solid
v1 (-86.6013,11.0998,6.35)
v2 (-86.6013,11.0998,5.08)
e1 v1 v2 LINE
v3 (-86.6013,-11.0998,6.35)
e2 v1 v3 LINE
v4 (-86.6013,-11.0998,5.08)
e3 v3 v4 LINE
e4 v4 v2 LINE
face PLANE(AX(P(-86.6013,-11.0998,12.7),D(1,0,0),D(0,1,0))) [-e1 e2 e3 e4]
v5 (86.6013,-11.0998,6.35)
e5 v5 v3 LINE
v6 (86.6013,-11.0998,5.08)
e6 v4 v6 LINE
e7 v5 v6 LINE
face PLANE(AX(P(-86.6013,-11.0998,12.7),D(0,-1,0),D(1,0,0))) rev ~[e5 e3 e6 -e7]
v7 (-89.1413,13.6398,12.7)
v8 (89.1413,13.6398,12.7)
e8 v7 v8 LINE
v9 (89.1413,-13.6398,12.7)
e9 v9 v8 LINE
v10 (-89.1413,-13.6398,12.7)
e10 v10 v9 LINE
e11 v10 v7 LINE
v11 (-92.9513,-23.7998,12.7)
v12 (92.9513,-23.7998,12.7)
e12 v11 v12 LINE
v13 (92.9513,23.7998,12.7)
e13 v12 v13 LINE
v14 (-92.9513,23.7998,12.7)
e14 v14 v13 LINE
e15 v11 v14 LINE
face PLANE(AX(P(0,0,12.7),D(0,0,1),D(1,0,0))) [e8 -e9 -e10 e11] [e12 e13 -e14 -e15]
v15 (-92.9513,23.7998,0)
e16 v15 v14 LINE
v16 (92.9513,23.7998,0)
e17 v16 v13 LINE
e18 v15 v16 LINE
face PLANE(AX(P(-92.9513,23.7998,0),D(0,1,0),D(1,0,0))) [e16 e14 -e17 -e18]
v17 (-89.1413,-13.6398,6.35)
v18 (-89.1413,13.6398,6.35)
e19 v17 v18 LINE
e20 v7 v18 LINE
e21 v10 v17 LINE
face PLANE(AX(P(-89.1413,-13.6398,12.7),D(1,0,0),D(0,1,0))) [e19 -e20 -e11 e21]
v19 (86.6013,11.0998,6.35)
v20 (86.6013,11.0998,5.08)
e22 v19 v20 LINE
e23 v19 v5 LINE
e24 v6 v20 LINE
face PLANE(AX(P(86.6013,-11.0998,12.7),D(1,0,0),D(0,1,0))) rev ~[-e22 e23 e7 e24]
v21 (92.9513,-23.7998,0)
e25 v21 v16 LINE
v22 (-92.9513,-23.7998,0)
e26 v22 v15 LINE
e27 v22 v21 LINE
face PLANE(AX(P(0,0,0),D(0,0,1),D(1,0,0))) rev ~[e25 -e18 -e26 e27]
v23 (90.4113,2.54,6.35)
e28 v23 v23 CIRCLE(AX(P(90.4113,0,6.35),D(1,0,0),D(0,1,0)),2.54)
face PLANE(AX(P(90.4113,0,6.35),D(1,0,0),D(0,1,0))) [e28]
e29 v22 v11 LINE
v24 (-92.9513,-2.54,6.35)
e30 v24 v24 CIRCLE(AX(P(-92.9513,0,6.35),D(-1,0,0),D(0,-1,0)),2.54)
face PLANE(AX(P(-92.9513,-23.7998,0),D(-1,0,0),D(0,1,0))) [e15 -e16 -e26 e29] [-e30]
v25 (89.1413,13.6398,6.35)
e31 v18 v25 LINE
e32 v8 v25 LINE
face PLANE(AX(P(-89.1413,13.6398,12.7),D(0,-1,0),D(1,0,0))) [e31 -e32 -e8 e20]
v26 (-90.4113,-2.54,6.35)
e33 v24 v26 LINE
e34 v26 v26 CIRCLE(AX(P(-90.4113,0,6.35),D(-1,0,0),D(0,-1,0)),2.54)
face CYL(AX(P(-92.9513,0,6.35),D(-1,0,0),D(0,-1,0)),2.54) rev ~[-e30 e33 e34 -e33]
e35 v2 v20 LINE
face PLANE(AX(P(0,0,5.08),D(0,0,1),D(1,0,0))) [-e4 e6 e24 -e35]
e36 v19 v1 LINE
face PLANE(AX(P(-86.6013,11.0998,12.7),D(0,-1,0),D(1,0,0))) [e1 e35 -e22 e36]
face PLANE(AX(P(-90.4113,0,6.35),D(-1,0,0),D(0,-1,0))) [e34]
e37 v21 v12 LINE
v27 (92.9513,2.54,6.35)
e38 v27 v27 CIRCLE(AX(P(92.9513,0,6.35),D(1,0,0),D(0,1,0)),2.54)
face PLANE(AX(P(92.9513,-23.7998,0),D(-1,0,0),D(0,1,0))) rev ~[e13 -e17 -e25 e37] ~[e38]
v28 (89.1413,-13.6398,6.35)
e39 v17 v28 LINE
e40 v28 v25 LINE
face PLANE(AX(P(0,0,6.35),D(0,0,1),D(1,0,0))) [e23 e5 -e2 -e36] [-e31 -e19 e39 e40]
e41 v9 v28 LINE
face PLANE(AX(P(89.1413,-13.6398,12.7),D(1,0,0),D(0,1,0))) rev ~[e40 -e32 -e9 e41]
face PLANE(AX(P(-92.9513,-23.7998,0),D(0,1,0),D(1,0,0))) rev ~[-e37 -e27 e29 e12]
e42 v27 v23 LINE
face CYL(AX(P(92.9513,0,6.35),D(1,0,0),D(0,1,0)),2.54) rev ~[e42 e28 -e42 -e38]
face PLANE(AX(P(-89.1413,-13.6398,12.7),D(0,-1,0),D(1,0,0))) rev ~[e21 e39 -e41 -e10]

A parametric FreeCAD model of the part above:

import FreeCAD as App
import Part
import Sketcher
Q = App.Units.Quantity


def add_polygon(sketch, points):
    """Adds a closed chain of lines whose ends are joined by coincident constraints."""
    first, n = sketch.GeometryCount, len(points)
    for a, b in zip(points, points[1:] + points[:1]):
        sketch.addGeometry(Part.LineSegment(App.Vector(*a, 0), App.Vector(*b, 0)), False)
    for i in range(n):
        sketch.addConstraint(Sketcher.Constraint("Coincident", first + i, 2, first + (i + 1) % n, 1))

doc = App.newDocument("Part")
body = doc.addObject("PartDesign::Body", "Body")

# Sketch on XY plane
sketch1 = doc.addObject("Sketcher::SketchObject", "Sketch")
body.addObject(sketch1)
sketch1.AttachmentSupport = (doc.XY_Plane, [""])
sketch1.MapMode = "FlatFace"
add_polygon(sketch1, [(-93, 24), (-93, -24), (93, -24), (93, 24)])  # lines 0-3
sketch1.addConstraint(Sketcher.Constraint("Vertical", 0))
sketch1.addConstraint(Sketcher.Constraint("Horizontal", 1))
sketch1.addConstraint(Sketcher.Constraint("Vertical", 2))
sketch1.addConstraint(Sketcher.Constraint("Horizontal", 3))
sketch1.addConstraint(Sketcher.Constraint("Symmetric", 0, 2, 2, 2, -1, 1))
sketch1.addConstraint(Sketcher.Constraint("DistanceX", 1, 1, 1, 2, Q("7.319 in")))
sketch1.addConstraint(Sketcher.Constraint("DistanceY", 0, 2, 0, 1, Q("1.874 in")))
pad1 = doc.addObject("PartDesign::Pad", "Pad")
body.addObject(pad1)
pad1.Profile = sketch1
pad1.Length = Q("0.5 in")

# Sketch on YZ plane
sketch2 = doc.addObject("Sketcher::SketchObject", "Sketch001")
body.addObject(sketch2)
sketch2.AttachmentSupport = (doc.YZ_Plane, [""])
sketch2.MapMode = "FlatFace"
sketch2.AttachmentOffset = App.Placement(App.Vector(0, 0, 3.6595 * 25.4), App.Rotation())
sketch2.addGeometry(Part.Circle(App.Vector(0, 6.3, 0), App.Vector(0, 0, 1), 2.5), False)
sketch2.addConstraint(Sketcher.Constraint("PointOnObject", 0, 3, -2))
sketch2.addConstraint(Sketcher.Constraint("Diameter", 0, Q("0.2 in")))
sketch2.addConstraint(Sketcher.Constraint("DistanceY", -1, 1, 0, 3, Q("0.25 in")))
pocket1 = doc.addObject("PartDesign::Pocket", "Pocket")
body.addObject(pocket1)
pocket1.Profile = sketch2
pocket1.Length = Q("0.1 in")

# Sketch on YZ plane
sketch3 = doc.addObject("Sketcher::SketchObject", "Sketch002")
body.addObject(sketch3)
sketch3.AttachmentSupport = (doc.YZ_Plane, [""])
sketch3.MapMode = "FlatFace"
sketch3.AttachmentOffset = App.Placement(App.Vector(0, 0, -3.6595 * 25.4), App.Rotation())
sketch3.addGeometry(Part.Circle(App.Vector(0, 6.3, 0), App.Vector(0, 0, 1), 2.5), False)
sketch3.addConstraint(Sketcher.Constraint("PointOnObject", 0, 3, -2))
sketch3.addConstraint(Sketcher.Constraint("Diameter", 0, Q("0.2 in")))
sketch3.addConstraint(Sketcher.Constraint("DistanceY", -1, 1, 0, 3, Q("0.25 in")))
pocket2 = doc.addObject("PartDesign::Pocket", "Pocket001")
body.addObject(pocket2)
pocket2.Profile = sketch3
pocket2.Length = Q("0.1 in")
pocket2.Reversed = True

# Sketch on XY plane
sketch4 = doc.addObject("Sketcher::SketchObject", "Sketch003")
body.addObject(sketch4)
sketch4.AttachmentSupport = (doc.XY_Plane, [""])
sketch4.MapMode = "FlatFace"
sketch4.AttachmentOffset = App.Placement(App.Vector(0, 0, 0.5 * 25.4), App.Rotation())
add_polygon(sketch4, [(-87, 11), (-87, -11), (87, -11), (87, 11)])  # lines 0-3
sketch4.addConstraint(Sketcher.Constraint("Vertical", 0))
sketch4.addConstraint(Sketcher.Constraint("Horizontal", 1))
sketch4.addConstraint(Sketcher.Constraint("Vertical", 2))
sketch4.addConstraint(Sketcher.Constraint("Horizontal", 3))
sketch4.addConstraint(Sketcher.Constraint("Symmetric", 0, 2, 2, 2, -1, 1))
sketch4.addConstraint(Sketcher.Constraint("DistanceX", 1, 1, 1, 2, Q("6.819 in")))
sketch4.addConstraint(Sketcher.Constraint("DistanceY", 0, 2, 0, 1, Q("0.874 in")))
pocket3 = doc.addObject("PartDesign::Pocket", "Pocket002")
body.addObject(pocket3)
pocket3.Profile = sketch4
pocket3.Length = Q("0.3 in")

# Sketch on XY plane
sketch5 = doc.addObject("Sketcher::SketchObject", "Sketch004")
body.addObject(sketch5)
sketch5.AttachmentSupport = (doc.XY_Plane, [""])
sketch5.MapMode = "FlatFace"
sketch5.AttachmentOffset = App.Placement(App.Vector(0, 0, 0.5 * 25.4), App.Rotation())
add_polygon(sketch5, [(-89, 14), (-89, -14), (89, -14), (89, 14)])  # lines 0-3
sketch5.addConstraint(Sketcher.Constraint("Vertical", 0))
sketch5.addConstraint(Sketcher.Constraint("Horizontal", 1))
sketch5.addConstraint(Sketcher.Constraint("Vertical", 2))
sketch5.addConstraint(Sketcher.Constraint("Horizontal", 3))
sketch5.addConstraint(Sketcher.Constraint("Symmetric", 0, 2, 2, 2, -1, 1))
sketch5.addConstraint(Sketcher.Constraint("DistanceX", 1, 1, 1, 2, Q("7.019 in")))
sketch5.addConstraint(Sketcher.Constraint("DistanceY", 0, 2, 0, 1, Q("1.074 in")))
pocket4 = doc.addObject("PartDesign::Pocket", "Pocket003")
body.addObject(pocket4)
pocket4.Profile = sketch5
pocket4.Length = Q("0.25 in")

doc.recompute()
